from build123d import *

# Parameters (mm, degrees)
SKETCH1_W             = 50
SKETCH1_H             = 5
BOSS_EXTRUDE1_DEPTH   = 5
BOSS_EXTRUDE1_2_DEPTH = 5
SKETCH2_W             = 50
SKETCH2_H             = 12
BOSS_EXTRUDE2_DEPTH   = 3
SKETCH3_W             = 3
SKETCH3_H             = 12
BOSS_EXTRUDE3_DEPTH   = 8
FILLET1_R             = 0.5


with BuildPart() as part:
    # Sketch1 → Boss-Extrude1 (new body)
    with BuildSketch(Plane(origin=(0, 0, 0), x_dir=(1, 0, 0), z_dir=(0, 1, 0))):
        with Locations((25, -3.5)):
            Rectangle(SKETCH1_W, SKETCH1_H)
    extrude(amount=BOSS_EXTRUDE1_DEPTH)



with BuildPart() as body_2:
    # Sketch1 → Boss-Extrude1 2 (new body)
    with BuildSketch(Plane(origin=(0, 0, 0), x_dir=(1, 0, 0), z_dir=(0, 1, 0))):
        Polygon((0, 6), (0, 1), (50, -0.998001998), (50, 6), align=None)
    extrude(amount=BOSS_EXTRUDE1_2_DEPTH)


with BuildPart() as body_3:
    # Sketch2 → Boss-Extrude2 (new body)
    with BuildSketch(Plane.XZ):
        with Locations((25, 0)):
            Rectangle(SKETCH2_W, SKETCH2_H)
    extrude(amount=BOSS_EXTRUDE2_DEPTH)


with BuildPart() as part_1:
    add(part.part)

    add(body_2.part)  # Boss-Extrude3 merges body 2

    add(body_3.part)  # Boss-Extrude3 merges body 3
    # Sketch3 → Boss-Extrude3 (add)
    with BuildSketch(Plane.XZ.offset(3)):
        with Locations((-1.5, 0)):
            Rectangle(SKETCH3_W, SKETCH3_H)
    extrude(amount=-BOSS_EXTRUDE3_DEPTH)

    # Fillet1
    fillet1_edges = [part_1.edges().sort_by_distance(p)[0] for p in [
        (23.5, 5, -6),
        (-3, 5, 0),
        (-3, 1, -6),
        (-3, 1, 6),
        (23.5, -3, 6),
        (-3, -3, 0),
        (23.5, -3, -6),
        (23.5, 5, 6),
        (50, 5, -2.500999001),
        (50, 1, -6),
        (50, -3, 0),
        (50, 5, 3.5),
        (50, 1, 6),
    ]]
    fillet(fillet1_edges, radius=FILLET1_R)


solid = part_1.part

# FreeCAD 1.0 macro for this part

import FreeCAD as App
import Part
import Sketcher

V = App.Vector


def edges_at(feature, points):
    """Names of the edges that pass closest to the given points."""
    edges = feature.Shape.Edges
    near = lambda p: min(range(len(edges)), key=lambda i: edges[i].distToShape(Part.Vertex(*p))[0])
    return sorted({f"Edge{near(p) + 1}" for p in points})

doc = App.newDocument("Part")
body = doc.addObject("PartDesign::Body", "Body")

sketch1 = body.newObject("Sketcher::SketchObject", "Sketch")
sketch1.AttachmentSupport = (doc.getObject("XZ_Plane"), [""])
sketch1.MapMode = "FlatFace"
sketch1.addGeometry(Part.LineSegment(V(0, 1, 0), V(0, 6, 0)), False)
sketch1.addGeometry(Part.LineSegment(V(0, 6, 0), V(50, 6, 0)), False)
sketch1.addGeometry(Part.LineSegment(V(50, 6, 0), V(50, 1, 0)), False)
sketch1.addGeometry(Part.LineSegment(V(50, 1, 0), V(0, 1, 0)), False)
sketch1.addConstraint(Sketcher.Constraint("Coincident", 0, 2, 1, 1))
sketch1.addConstraint(Sketcher.Constraint("Coincident", 1, 2, 2, 1))
sketch1.addConstraint(Sketcher.Constraint("Coincident", 2, 2, 3, 1))
sketch1.addConstraint(Sketcher.Constraint("Coincident", 3, 2, 0, 1))
sketch1.addConstraint(Sketcher.Constraint("Vertical", 0))
sketch1.addConstraint(Sketcher.Constraint("Horizontal", 1))
sketch1.addConstraint(Sketcher.Constraint("Vertical", 2))
sketch1.addConstraint(Sketcher.Constraint("Horizontal", 3))
sketch1.addConstraint(Sketcher.Constraint("PointOnObject", 0, 2, -2))
sketch1.addConstraint(Sketcher.Constraint("DistanceX", 1, 1, 1, 2, 50.0))
sketch1.addConstraint(Sketcher.Constraint("DistanceY", 0, 1, 0, 2, 5.0))
sketch1.addConstraint(Sketcher.Constraint("DistanceY", -1, 1, 0, 2, 6.0))
pad1 = body.newObject("PartDesign::Pad", "Pad")
pad1.Profile = sketch1
pad1.Length = 5
pad1.Reversed = True
body2 = doc.addObject("PartDesign::Body", "Body001")

sketch2 = body2.newObject("Sketcher::SketchObject", "Sketch001")
sketch2.AttachmentSupport = (doc.getObject("XZ_Plane001"), [""])
sketch2.MapMode = "FlatFace"
sketch2.addGeometry(Part.LineSegment(V(0, -6, 0), V(0, -1, 0)), False)
sketch2.addGeometry(Part.LineSegment(V(0, -1, 0), V(50, 0.998002, 0)), False)
sketch2.addGeometry(Part.LineSegment(V(50, 0.998002, 0), V(50, -6, 0)), False)
sketch2.addGeometry(Part.LineSegment(V(50, -6, 0), V(0, -6, 0)), False)
sketch2.addConstraint(Sketcher.Constraint("Coincident", 0, 2, 1, 1))
sketch2.addConstraint(Sketcher.Constraint("Coincident", 1, 2, 2, 1))
sketch2.addConstraint(Sketcher.Constraint("Coincident", 2, 2, 3, 1))
sketch2.addConstraint(Sketcher.Constraint("Coincident", 3, 2, 0, 1))
sketch2.addConstraint(Sketcher.Constraint("Vertical", 0))
sketch2.addConstraint(Sketcher.Constraint("Vertical", 2))
sketch2.addConstraint(Sketcher.Constraint("Horizontal", 3))
sketch2.addConstraint(Sketcher.Constraint("PointOnObject", 0, 2, -2))
sketch2.addConstraint(Sketcher.Constraint("DistanceX", 3, 2, 3, 1, 50.0))
sketch2.addConstraint(Sketcher.Constraint("DistanceY", 0, 1, 0, 2, 5.0))
sketch2.addConstraint(Sketcher.Constraint("DistanceY", 0, 2, -1, 1, 1.0))
sketch2.addConstraint(Sketcher.Constraint("DistanceY", 2, 2, 2, 1, 6.998002))
pad2 = body2.newObject("PartDesign::Pad", "Pad001")
pad2.Profile = sketch2
pad2.Length = 5
pad2.Reversed = True
body3 = doc.addObject("PartDesign::Body", "Body002")

sketch3 = body3.newObject("Sketcher::SketchObject", "Sketch002")
sketch3.AttachmentSupport = (doc.getObject("XZ_Plane002"), [""])
sketch3.MapMode = "FlatFace"
sketch3.addGeometry(Part.LineSegment(V(0, 6, 0), V(0, -6, 0)), False)
sketch3.addGeometry(Part.LineSegment(V(0, -6, 0), V(50, -6, 0)), False)
sketch3.addGeometry(Part.LineSegment(V(50, -6, 0), V(50, 6, 0)), False)
sketch3.addGeometry(Part.LineSegment(V(50, 6, 0), V(0, 6, 0)), False)
sketch3.addConstraint(Sketcher.Constraint("Coincident", 0, 2, 1, 1))
sketch3.addConstraint(Sketcher.Constraint("Coincident", 1, 2, 2, 1))
sketch3.addConstraint(Sketcher.Constraint("Coincident", 2, 2, 3, 1))
sketch3.addConstraint(Sketcher.Constraint("Coincident", 3, 2, 0, 1))
sketch3.addConstraint(Sketcher.Constraint("Vertical", 0))
sketch3.addConstraint(Sketcher.Constraint("Horizontal", 1))
sketch3.addConstraint(Sketcher.Constraint("Vertical", 2))
sketch3.addConstraint(Sketcher.Constraint("Horizontal", 3))
sketch3.addConstraint(Sketcher.Constraint("Symmetric", 0, 2, 3, 2, -1, 1))
sketch3.addConstraint(Sketcher.Constraint("DistanceX", 1, 1, 1, 2, 50.0))
sketch3.addConstraint(Sketcher.Constraint("DistanceY", 0, 2, 0, 1, 12.0))
pad3 = body3.newObject("PartDesign::Pad", "Pad002")
pad3.Profile = sketch3
pad3.Length = 3
body.AllowCompound = True
doc.recompute()

boolean = body.newObject("PartDesign::Boolean", "Boolean")
boolean.Type = "Fuse"
boolean.addObjects([body2])
doc.recompute()

boolean2 = body.newObject("PartDesign::Boolean", "Boolean001")
boolean2.Type = "Fuse"
boolean2.addObjects([body3])

sketch4 = body.newObject("Sketcher::SketchObject", "Sketch003")
sketch4.AttachmentSupport = (doc.getObject("XZ_Plane"), [""])
sketch4.MapMode = "FlatFace"
sketch4.AttachmentOffset = App.Placement(V(0, 0, 3), App.Rotation())
sketch4.addGeometry(Part.LineSegment(V(-3, 6, 0), V(-3, -6, 0)), False)
sketch4.addGeometry(Part.LineSegment(V(-3, -6, 0), V(0, -6, 0)), False)
sketch4.addGeometry(Part.LineSegment(V(0, -6, 0), V(0, 6, 0)), False)
sketch4.addGeometry(Part.LineSegment(V(0, 6, 0), V(-3, 6, 0)), False)
sketch4.addConstraint(Sketcher.Constraint("Coincident", 0, 2, 1, 1))
sketch4.addConstraint(Sketcher.Constraint("Coincident", 1, 2, 2, 1))
sketch4.addConstraint(Sketcher.Constraint("Coincident", 2, 2, 3, 1))
sketch4.addConstraint(Sketcher.Constraint("Coincident", 3, 2, 0, 1))
sketch4.addConstraint(Sketcher.Constraint("Vertical", 0))
sketch4.addConstraint(Sketcher.Constraint("Horizontal", 1))
sketch4.addConstraint(Sketcher.Constraint("Vertical", 2))
sketch4.addConstraint(Sketcher.Constraint("Horizontal", 3))
sketch4.addConstraint(Sketcher.Constraint("Symmetric", 1, 2, 2, 2, -1, 1))
sketch4.addConstraint(Sketcher.Constraint("DistanceX", 1, 1, 1, 2, 3.0))
sketch4.addConstraint(Sketcher.Constraint("DistanceY", 0, 2, 0, 1, 12.0))
pad4 = body.newObject("PartDesign::Pad", "Pad003")
pad4.Profile = sketch4
pad4.Length = 8
pad4.Reversed = True
doc.recompute()

fillet = body.newObject("PartDesign::Fillet", "Fillet")
fillet.Base = (pad4, edges_at(pad4, [
    (23.5, 5, -6),
    (-3, 5, 0),
    (-3, 1, -6),
    (-3, 1, 6),
    (23.5, -3, 6),
    (-3, -3, 0),
    (23.5, -3, -6),
    (23.5, 5, 6),
    (50, 5, -2.501),
    (50, 1, -6),
    (50, -3, 0),
    (50, 5, 3.5),
    (50, 1, 6),
]))
fillet.Radius = 0.5

doc.recompute()
